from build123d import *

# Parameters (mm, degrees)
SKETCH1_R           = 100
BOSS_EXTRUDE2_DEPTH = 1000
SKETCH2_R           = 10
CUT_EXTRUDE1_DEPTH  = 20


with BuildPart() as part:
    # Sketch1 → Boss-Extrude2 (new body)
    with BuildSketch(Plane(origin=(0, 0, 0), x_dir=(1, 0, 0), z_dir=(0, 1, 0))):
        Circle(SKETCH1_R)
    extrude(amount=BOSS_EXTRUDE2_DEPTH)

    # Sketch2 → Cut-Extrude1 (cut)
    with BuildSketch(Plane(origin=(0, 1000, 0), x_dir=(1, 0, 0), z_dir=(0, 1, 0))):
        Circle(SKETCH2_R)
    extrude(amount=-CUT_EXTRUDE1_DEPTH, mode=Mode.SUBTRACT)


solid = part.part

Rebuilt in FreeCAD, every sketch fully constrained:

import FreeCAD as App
import Part
import Sketcher
Q = App.Units.Quantity

doc = App.newDocument("Part")
body = doc.addObject("PartDesign::Body", "Body")

sketch1 = body.newObject("Sketcher::SketchObject", "Sketch")
sketch1.AttachmentSupport = (doc.getObject("XZ_Plane"), [""])
sketch1.MapMode = "FlatFace"
sketch1.addGeometry(Part.Circle(App.Vector(0, 0, 0), App.Vector(0, 0, 1), 100), False)
sketch1.addConstraint([
    Sketcher.Constraint("Coincident", 0, 3, -1, 1),
    Sketcher.Constraint("Diameter", 0, Q("200 mm")),
])
pad1 = body.newObject("PartDesign::Pad", "Pad")
pad1.Profile = sketch1
pad1.Length = 1000
pad1.Reversed = True

sketch2 = body.newObject("Sketcher::SketchObject", "Sketch001")
sketch2.AttachmentSupport = (doc.getObject("XZ_Plane"), [""])
sketch2.MapMode = "FlatFace"
sketch2.AttachmentOffset = App.Placement(App.Vector(0, 0, -1000), App.Rotation())
sketch2.addGeometry(Part.Circle(App.Vector(0, 0, 0), App.Vector(0, 0, 1), 10), False)
sketch2.addConstraint([
    Sketcher.Constraint("Coincident", 0, 3, -1, 1),
    Sketcher.Constraint("Diameter", 0, Q("20 mm")),
])
pocket1 = body.newObject("PartDesign::Pocket", "Pocket")
pocket1.Profile = sketch2
pocket1.Length = 20
pocket1.Reversed = True

doc.recompute()
